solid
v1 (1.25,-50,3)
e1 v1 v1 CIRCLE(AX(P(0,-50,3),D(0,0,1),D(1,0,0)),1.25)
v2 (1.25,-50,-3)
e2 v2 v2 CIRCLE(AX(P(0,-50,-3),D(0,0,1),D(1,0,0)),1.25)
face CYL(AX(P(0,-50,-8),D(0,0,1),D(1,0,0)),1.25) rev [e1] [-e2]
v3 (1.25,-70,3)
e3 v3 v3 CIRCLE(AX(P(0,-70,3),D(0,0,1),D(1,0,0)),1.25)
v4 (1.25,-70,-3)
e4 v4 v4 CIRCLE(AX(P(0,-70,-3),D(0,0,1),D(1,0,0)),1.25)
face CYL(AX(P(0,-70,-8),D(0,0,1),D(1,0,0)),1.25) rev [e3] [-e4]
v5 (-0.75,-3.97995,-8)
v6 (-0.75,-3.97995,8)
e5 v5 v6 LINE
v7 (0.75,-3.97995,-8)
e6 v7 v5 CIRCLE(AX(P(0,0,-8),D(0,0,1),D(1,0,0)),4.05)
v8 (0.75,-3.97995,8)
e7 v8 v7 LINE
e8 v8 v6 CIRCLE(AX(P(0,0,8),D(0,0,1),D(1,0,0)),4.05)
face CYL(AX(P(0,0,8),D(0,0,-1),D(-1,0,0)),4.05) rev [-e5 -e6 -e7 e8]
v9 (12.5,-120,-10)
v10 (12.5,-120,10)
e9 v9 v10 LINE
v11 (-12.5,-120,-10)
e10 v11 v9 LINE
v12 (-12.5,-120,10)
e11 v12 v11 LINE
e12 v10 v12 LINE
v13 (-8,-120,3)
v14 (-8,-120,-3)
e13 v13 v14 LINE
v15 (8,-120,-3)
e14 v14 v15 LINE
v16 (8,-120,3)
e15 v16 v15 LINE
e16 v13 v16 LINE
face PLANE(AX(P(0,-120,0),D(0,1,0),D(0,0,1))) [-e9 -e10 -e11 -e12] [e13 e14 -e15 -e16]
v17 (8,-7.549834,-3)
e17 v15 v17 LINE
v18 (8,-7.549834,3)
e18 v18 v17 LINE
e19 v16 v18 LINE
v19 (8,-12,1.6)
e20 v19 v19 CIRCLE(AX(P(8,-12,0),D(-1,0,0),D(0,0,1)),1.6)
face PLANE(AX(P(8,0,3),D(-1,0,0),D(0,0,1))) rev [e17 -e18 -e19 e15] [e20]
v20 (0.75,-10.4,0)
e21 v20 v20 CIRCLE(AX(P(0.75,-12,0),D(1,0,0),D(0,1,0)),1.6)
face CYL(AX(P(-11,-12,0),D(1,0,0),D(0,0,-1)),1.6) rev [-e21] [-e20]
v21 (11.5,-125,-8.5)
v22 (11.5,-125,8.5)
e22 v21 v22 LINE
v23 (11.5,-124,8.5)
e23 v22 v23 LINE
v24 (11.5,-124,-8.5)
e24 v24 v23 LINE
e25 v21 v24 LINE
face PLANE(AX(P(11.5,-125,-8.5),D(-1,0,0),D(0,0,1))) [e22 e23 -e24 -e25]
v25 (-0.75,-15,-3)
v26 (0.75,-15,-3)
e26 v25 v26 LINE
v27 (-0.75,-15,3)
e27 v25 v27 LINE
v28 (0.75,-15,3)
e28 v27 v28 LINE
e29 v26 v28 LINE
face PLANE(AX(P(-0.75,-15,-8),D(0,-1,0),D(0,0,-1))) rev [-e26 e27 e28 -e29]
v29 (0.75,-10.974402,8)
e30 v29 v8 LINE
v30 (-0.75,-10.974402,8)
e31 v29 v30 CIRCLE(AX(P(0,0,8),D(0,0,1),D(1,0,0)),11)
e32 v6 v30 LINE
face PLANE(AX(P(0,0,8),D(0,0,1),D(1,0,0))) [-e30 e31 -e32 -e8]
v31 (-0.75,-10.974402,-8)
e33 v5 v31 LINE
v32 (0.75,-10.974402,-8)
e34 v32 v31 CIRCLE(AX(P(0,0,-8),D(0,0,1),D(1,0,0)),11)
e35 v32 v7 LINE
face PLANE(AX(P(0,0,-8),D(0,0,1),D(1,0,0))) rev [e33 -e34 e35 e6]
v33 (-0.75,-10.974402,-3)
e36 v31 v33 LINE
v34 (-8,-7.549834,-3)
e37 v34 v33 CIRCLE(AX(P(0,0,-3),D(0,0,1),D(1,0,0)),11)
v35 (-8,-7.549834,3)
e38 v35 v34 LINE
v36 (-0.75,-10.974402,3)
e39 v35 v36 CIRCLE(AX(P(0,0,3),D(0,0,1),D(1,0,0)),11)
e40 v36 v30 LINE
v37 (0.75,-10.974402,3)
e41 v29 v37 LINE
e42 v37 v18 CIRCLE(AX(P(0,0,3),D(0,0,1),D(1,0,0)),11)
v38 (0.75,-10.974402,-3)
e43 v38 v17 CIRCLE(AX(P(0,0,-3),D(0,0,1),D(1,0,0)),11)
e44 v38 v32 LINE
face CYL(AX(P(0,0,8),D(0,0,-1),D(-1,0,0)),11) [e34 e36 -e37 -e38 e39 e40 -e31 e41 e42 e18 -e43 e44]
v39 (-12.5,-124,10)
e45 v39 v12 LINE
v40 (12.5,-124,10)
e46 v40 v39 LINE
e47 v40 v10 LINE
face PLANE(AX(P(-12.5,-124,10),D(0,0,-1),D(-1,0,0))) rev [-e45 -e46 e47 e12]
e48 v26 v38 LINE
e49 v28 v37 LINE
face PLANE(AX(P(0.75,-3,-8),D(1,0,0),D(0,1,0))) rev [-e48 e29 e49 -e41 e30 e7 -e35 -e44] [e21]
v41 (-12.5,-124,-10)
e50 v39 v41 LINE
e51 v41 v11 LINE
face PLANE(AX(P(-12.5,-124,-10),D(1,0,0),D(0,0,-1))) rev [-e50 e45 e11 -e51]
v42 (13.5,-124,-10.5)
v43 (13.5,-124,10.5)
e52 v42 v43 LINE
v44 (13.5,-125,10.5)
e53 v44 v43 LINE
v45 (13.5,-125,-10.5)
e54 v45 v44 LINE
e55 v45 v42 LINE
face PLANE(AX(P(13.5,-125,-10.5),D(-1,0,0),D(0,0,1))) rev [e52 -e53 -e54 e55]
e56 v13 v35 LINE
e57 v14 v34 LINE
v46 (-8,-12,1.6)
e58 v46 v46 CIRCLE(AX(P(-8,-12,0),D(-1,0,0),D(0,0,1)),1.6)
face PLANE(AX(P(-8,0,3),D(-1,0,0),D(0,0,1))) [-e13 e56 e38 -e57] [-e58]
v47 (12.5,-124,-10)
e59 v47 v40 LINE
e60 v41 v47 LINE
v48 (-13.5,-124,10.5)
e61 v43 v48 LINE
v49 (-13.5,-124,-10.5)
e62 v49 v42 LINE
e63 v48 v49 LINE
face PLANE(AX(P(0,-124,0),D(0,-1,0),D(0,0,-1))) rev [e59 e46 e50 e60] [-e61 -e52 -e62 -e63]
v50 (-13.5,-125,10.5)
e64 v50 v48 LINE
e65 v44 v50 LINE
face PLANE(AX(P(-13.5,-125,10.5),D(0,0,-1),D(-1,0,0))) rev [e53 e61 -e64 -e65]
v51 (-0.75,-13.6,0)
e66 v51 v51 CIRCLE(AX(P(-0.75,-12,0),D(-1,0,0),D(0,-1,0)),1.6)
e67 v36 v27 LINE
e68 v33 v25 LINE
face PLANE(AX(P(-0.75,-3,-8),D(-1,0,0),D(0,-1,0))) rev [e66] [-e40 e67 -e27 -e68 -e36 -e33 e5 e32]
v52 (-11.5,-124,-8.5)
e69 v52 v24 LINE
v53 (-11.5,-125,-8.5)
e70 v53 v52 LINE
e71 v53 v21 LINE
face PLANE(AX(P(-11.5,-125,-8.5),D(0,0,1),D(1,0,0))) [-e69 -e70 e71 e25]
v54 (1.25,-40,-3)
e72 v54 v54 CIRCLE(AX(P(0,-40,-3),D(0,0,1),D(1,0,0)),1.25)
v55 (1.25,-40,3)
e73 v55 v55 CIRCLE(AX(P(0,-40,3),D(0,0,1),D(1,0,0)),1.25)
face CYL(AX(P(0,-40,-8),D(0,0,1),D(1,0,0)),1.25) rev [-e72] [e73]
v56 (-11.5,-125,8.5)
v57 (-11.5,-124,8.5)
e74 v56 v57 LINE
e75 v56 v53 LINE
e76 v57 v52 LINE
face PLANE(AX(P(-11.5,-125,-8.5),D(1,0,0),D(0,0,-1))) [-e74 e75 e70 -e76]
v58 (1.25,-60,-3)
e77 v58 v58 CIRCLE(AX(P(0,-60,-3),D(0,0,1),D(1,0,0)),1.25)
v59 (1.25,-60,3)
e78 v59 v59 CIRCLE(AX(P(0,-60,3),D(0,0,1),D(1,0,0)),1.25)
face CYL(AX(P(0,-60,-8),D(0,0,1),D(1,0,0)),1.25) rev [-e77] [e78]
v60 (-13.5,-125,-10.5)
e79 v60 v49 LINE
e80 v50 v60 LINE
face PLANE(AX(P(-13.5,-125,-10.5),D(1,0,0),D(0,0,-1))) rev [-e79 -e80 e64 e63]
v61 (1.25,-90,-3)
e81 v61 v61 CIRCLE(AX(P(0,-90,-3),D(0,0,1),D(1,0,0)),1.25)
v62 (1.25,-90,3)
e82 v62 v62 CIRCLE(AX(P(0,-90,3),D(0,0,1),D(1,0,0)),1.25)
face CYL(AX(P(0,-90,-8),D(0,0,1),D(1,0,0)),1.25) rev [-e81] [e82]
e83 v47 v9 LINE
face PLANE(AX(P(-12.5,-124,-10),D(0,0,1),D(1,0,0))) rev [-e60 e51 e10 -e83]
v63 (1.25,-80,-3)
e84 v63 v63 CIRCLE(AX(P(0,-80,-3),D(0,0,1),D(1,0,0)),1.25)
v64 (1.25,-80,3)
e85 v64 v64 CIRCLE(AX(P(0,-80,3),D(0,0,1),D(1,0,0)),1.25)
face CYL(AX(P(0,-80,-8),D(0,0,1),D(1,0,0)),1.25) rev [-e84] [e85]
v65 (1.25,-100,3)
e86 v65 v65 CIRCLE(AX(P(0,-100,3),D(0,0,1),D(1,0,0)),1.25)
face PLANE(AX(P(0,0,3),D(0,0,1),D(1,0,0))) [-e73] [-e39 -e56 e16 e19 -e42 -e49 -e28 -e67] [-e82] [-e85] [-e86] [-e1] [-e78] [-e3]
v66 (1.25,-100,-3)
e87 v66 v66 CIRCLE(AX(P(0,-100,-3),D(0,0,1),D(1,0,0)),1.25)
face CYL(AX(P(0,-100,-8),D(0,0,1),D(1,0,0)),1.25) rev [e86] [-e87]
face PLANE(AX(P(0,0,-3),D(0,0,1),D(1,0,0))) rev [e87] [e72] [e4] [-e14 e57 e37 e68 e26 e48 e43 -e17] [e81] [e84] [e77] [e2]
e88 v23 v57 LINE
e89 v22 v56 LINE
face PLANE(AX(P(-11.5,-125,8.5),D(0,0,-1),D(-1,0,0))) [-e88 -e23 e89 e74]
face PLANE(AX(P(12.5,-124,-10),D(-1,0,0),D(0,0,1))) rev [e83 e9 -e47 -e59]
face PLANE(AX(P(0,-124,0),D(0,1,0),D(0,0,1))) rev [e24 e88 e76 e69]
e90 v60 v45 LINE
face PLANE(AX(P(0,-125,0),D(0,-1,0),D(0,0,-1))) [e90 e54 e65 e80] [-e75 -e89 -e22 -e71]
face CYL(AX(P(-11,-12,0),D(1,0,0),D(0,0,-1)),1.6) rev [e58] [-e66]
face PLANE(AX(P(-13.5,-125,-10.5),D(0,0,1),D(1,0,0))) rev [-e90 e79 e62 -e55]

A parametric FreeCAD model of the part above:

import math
import FreeCAD as App
import Part
import Sketcher
Q = App.Units.Quantity


def add_polygon(sketch, points):
    """Adds a closed chain of lines whose ends are joined by coincident constraints."""
    first, n = sketch.GeometryCount, len(points)
    for a, b in zip(points, points[1:] + points[:1]):
        sketch.addGeometry(Part.LineSegment(App.Vector(*a, 0), App.Vector(*b, 0)), False)
    for i in range(n):
        sketch.addConstraint(Sketcher.Constraint("Coincident", first + i, 2, first + (i + 1) % n, 1))

doc = App.newDocument("Part")
body = doc.addObject("PartDesign::Body", "Body")

sketch1 = body.newObject("Sketcher::SketchObject", "Sketch")
sketch1.AttachmentSupport = (doc.getObject("XY_Plane"), [""])
sketch1.MapMode = "FlatFace"
sketch1.addGeometry(Part.Circle(App.Vector(0, 0, 0), App.Vector(0, 0, 1), 11), False)
sketch1.addGeometry(Part.Circle(App.Vector(0, 0, 0), App.Vector(0, 0, 1), 4), False)
sketch1.addConstraint(Sketcher.Constraint("Coincident", 0, 3, -1, 1))
sketch1.addConstraint(Sketcher.Constraint("Coincident", 1, 3, -1, 1))
sketch1.addConstraint(Sketcher.Constraint("Diameter", 0, Q("22 mm")))
sketch1.addConstraint(Sketcher.Constraint("Diameter", 1, Q("8.1 mm")))
pad1 = body.newObject("PartDesign::Pad", "Pad")
pad1.Profile = sketch1
pad1.Length = 16
pad1.Midplane = True

sketch2 = body.newObject("Sketcher::SketchObject", "Sketch001")
sketch2.AttachmentSupport = (doc.getObject("XY_Plane"), [""])
sketch2.MapMode = "FlatFace"
sketch2.addGeometry(Part.LineSegment(App.Vector(-8, -8, 0), App.Vector(-8, -120, 0)), False)
sketch2.addGeometry(Part.LineSegment(App.Vector(-8, -120, 0), App.Vector(8, -120, 0)), False)
sketch2.addGeometry(Part.LineSegment(App.Vector(8, -120, 0), App.Vector(8, -8, 0)), False)
sketch2.addGeometry(Part.ArcOfCircle(Part.Circle(App.Vector(0, 0, 0), App.Vector(0, 0, 1), 11), math.radians(-137), math.radians(-43)), False)
sketch2.addConstraint(Sketcher.Constraint("Coincident", 0, 2, 1, 1))
sketch2.addConstraint(Sketcher.Constraint("Coincident", 1, 2, 2, 1))
sketch2.addConstraint(Sketcher.Constraint("Coincident", 2, 2, 3, 2))
sketch2.addConstraint(Sketcher.Constraint("Coincident", 3, 1, 0, 1))
sketch2.addConstraint(Sketcher.Constraint("Vertical", 0))
sketch2.addConstraint(Sketcher.Constraint("Horizontal", 1))
sketch2.addConstraint(Sketcher.Constraint("Vertical", 2))
sketch2.addConstraint(Sketcher.Constraint("Coincident", 3, 3, -1, 1))
sketch2.addConstraint(Sketcher.Constraint("Horizontal", 2, 2, 3, 1))
sketch2.addConstraint(Sketcher.Constraint("Radius", 3, Q("11 mm")))
sketch2.addConstraint(Sketcher.Constraint("DistanceX", 1, 1, 1, 2, Q("16 mm")))
sketch2.addConstraint(Sketcher.Constraint("DistanceY", 0, 2, -1, 1, Q("120 mm")))
pad2 = body.newObject("PartDesign::Pad", "Pad001")
pad2.Profile = sketch2
pad2.Length = 6
pad2.Midplane = True

sketch3 = body.newObject("Sketcher::SketchObject", "Sketch002")
sketch3.AttachmentSupport = (doc.getObject("XY_Plane"), [""])
sketch3.MapMode = "FlatFace"
add_polygon(sketch3, [(0.8, -3), (-0.8, -3), (-0.8, -15), (0.8, -15)])
sketch3.addConstraint(Sketcher.Constraint("Horizontal", 0))
sketch3.addConstraint(Sketcher.Constraint("Vertical", 1))
sketch3.addConstraint(Sketcher.Constraint("Horizontal", 2))
sketch3.addConstraint(Sketcher.Constraint("Vertical", 3))
sketch3.addConstraint(Sketcher.Constraint("DistanceY", 1, 2, 1, 1, Q("12 mm")))
sketch3.addConstraint(Sketcher.Constraint("DistanceX", 0, 2, 0, 1, Q("1.5 mm")))
sketch3.addConstraint(Sketcher.Constraint("DistanceY", 0, 2, -1, 1, Q("3 mm")))
sketch3.addConstraint(Sketcher.Constraint("DistanceX", 0, 2, -1, 1, Q("0.75 mm")))
pocket1 = body.newObject("PartDesign::Pocket", "Pocket")
pocket1.Profile = sketch3
pocket1.Type = "ThroughAll"
pocket1.Midplane = True

sketch4 = body.newObject("Sketcher::SketchObject", "Sketch003")
sketch4.AttachmentSupport = (doc.getObject("YZ_Plane"), [""])
sketch4.MapMode = "FlatFace"
sketch4.addGeometry(Part.Circle(App.Vector(-12, 0, 0), App.Vector(0, 0, 1), 1.6), False)
sketch4.addConstraint(Sketcher.Constraint("PointOnObject", 0, 3, -1))
sketch4.addConstraint(Sketcher.Constraint("Diameter", 0, Q("3.2 mm")))
sketch4.addConstraint(Sketcher.Constraint("DistanceX", 0, 3, -1, 1, Q("12 mm")))
pocket2 = body.newObject("PartDesign::Pocket", "Pocket001")
pocket2.Profile = sketch4
pocket2.Type = "ThroughAll"
pocket2.Midplane = True

sketch5 = body.newObject("Sketcher::SketchObject", "Sketch004")
sketch5.AttachmentSupport = (doc.getObject("XY_Plane"), [""])
sketch5.MapMode = "FlatFace"
sketch5.addGeometry(Part.Circle(App.Vector(0, -40, 0), App.Vector(0, 0, 1), 1.2), False)
sketch5.addConstraint(Sketcher.Constraint("PointOnObject", 0, 3, -2))
sketch5.addConstraint(Sketcher.Constraint("Diameter", 0, Q("2.5 mm")))
sketch5.addConstraint(Sketcher.Constraint("DistanceY", 0, 3, -1, 1, Q("40 mm")))
pocket3 = body.newObject("PartDesign::Pocket", "Pocket002")
pocket3.Profile = sketch5
pocket3.Length = 243.536747
pocket3.Midplane = True
doc.recompute()

linearpattern = body.newObject("PartDesign::LinearPattern", "LinearPattern")
linearpattern.Originals = [pocket3]
linearpattern.Direction = (doc.getObject("Y_Axis"), [""])
linearpattern.Mode = "offset"
linearpattern.Offset = 10
linearpattern.Occurrences = 7
linearpattern.Reversed = True
body.Tip = linearpattern

sketch6 = body.newObject("Sketcher::SketchObject", "Sketch005")
sketch6.AttachmentSupport = (doc.getObject("XZ_Plane"), [""])
sketch6.MapMode = "FlatFace"
sketch6.AttachmentOffset = App.Placement(App.Vector(0, 0, 120), App.Rotation())
add_polygon(sketch6, [(-12, 10), (-12, -10), (12, -10), (12, 10)])
sketch6.addConstraint(Sketcher.Constraint("Vertical", 0))
sketch6.addConstraint(Sketcher.Constraint("Horizontal", 1))
sketch6.addConstraint(Sketcher.Constraint("Vertical", 2))
sketch6.addConstraint(Sketcher.Constraint("Horizontal", 3))
sketch6.addConstraint(Sketcher.Constraint("Symmetric", 0, 2, 2, 2, -1, 1))
sketch6.addConstraint(Sketcher.Constraint("DistanceX", 1, 1, 1, 2, Q("25 mm")))
sketch6.addConstraint(Sketcher.Constraint("DistanceY", 0, 2, 0, 1, Q("20 mm")))
pad3 = body.newObject("PartDesign::Pad", "Pad002")
pad3.Profile = sketch6
pad3.Length = 4

sketch7 = body.newObject("Sketcher::SketchObject", "Sketch006")
sketch7.AttachmentSupport = (doc.getObject("XZ_Plane"), [""])
sketch7.MapMode = "FlatFace"
sketch7.AttachmentOffset = App.Placement(App.Vector(0, 0, 124), App.Rotation())
add_polygon(sketch7, [(-14, 10), (-14, -10), (14, -10), (14, 10)])
add_polygon(sketch7, [(-12, -8), (-12, 8), (12, 8), (12, -8)])
sketch7.addConstraint(Sketcher.Constraint("Vertical", 0))
sketch7.addConstraint(Sketcher.Constraint("Horizontal", 1))
sketch7.addConstraint(Sketcher.Constraint("Vertical", 2))
sketch7.addConstraint(Sketcher.Constraint("Horizontal", 3))
sketch7.addConstraint(Sketcher.Constraint("Vertical", 4))
sketch7.addConstraint(Sketcher.Constraint("Horizontal", 5))
sketch7.addConstraint(Sketcher.Constraint("Vertical", 6))
sketch7.addConstraint(Sketcher.Constraint("Horizontal", 7))
sketch7.addConstraint(Sketcher.Constraint("Symmetric", 0, 2, 2, 2, -1, 1))
sketch7.addConstraint(Sketcher.Constraint("Symmetric", 4, 2, 6, 2, -1, 1))
sketch7.addConstraint(Sketcher.Constraint("DistanceX", 1, 1, 1, 2, Q("27 mm")))
sketch7.addConstraint(Sketcher.Constraint("DistanceX", 5, 1, 5, 2, Q("23 mm")))
sketch7.addConstraint(Sketcher.Constraint("DistanceY", 0, 2, 0, 1, Q("21 mm")))
sketch7.addConstraint(Sketcher.Constraint("DistanceY", 4, 1, 4, 2, Q("17 mm")))
pad4 = body.newObject("PartDesign::Pad", "Pad003")
pad4.Profile = sketch7
pad4.Length = 1

doc.recompute()
